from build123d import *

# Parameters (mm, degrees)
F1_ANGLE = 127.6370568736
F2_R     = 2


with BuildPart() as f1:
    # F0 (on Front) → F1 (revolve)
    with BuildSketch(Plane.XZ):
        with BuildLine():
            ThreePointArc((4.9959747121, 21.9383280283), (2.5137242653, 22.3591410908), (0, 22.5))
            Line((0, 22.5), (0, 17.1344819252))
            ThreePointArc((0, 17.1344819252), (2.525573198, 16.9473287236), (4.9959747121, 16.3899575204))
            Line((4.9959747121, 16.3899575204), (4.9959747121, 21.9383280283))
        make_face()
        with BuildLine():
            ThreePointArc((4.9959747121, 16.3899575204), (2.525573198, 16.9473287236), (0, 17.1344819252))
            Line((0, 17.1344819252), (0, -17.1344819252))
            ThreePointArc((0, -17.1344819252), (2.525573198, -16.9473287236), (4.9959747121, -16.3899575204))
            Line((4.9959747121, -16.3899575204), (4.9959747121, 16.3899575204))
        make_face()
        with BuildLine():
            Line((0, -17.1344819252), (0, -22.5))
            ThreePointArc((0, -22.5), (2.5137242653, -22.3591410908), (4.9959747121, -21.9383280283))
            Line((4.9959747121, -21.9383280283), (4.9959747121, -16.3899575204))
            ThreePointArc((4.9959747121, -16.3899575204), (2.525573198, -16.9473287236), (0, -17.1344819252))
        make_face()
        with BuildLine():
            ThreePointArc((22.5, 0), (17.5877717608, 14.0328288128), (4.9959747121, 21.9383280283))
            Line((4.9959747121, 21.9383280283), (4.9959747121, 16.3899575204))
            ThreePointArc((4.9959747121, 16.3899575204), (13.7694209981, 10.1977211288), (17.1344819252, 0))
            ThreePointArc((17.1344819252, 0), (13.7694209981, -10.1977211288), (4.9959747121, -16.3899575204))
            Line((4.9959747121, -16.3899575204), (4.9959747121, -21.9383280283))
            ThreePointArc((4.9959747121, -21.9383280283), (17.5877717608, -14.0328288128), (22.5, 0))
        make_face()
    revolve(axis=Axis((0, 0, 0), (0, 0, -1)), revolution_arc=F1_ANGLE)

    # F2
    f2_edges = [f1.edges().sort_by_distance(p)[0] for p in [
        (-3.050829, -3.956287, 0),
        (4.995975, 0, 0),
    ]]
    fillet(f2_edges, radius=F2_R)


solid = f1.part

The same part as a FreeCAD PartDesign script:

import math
import FreeCAD as App
import Part
import Sketcher

V = App.Vector


def edges_at(feature, points):
    """Names of the edges that pass closest to the given points."""
    edges = feature.Shape.Edges
    near = lambda p: min(range(len(edges)), key=lambda i: edges[i].distToShape(Part.Vertex(*p))[0])
    return sorted({f"Edge{near(p) + 1}" for p in points})

doc = App.newDocument("Part")
body = doc.addObject("PartDesign::Body", "Body")

# Sketch on XZ plane
sketch1 = body.newObject("Sketcher::SketchObject", "Sketch")
sketch1.AttachmentSupport = (doc.getObject("XZ_Plane"), [""])
sketch1.MapMode = "FlatFace"
sketch1.addGeometry(Part.ArcOfCircle(Part.Circle(V(0, 0, 0), V(0, 0, 1), 22.5), math.radians(77.170925), math.radians(90)), False)
sketch1.addGeometry(Part.LineSegment(V(0, 22.5, 0), V(0, -22.5, 0)), False)
sketch1.addGeometry(Part.ArcOfCircle(Part.Circle(V(0, 0, 0), V(0, 0, 1), 22.5), math.radians(-90), math.radians(-77.170925)), False)
sketch1.addGeometry(Part.ArcOfCircle(Part.Circle(V(0, 0, 0), V(0, 0, 1), 22.5), math.radians(-77.170925), math.radians(0)), False)
sketch1.addGeometry(Part.ArcOfCircle(Part.Circle(V(0, 0, 0), V(0, 0, 1), 22.5), math.radians(0), math.radians(77.170925)), False)
sketch1.addGeometry(Part.LineSegment(V(4.995975, -16.389958, 0), V(4.995975, 16.389958, 0)), False)
sketch1.addGeometry(Part.ArcOfCircle(Part.Circle(V(0, 0, 0), V(0, 0, 1), 17.134482), math.radians(0), math.radians(73.047769)), False)
sketch1.addGeometry(Part.ArcOfCircle(Part.Circle(V(0, 0, 0), V(0, 0, 1), 17.134482), math.radians(-73.047769), math.radians(0)), False)
sketch1.addConstraint(Sketcher.Constraint("Coincident", 0, 2, 1, 1))
sketch1.addConstraint(Sketcher.Constraint("Coincident", 1, 2, 2, 1))
sketch1.addConstraint(Sketcher.Constraint("Tangent", 2, 2, 3, 1))
sketch1.addConstraint(Sketcher.Constraint("Tangent", 3, 2, 4, 1))
sketch1.addConstraint(Sketcher.Constraint("Tangent", 4, 2, 0, 1))
sketch1.addConstraint(Sketcher.Constraint("Coincident", 5, 2, 6, 2))
sketch1.addConstraint(Sketcher.Constraint("Tangent", 6, 1, 7, 2))
sketch1.addConstraint(Sketcher.Constraint("Coincident", 7, 1, 5, 1))
sketch1.addConstraint(Sketcher.Constraint("Vertical", 1))
sketch1.addConstraint(Sketcher.Constraint("Vertical", 5))
sketch1.addConstraint(Sketcher.Constraint("Coincident", 0, 3, -1, 1))
sketch1.addConstraint(Sketcher.Constraint("Coincident", 2, 3, -1, 1))
sketch1.addConstraint(Sketcher.Constraint("Coincident", 6, 3, -1, 1))
sketch1.addConstraint(Sketcher.Constraint("Equal", 0, 2))
sketch1.addConstraint(Sketcher.Constraint("Equal", 6, 7))
sketch1.addConstraint(Sketcher.Constraint("PointOnObject", 0, 2, -2))
sketch1.addConstraint(Sketcher.Constraint("PointOnObject", 3, 2, -1))
sketch1.addConstraint(Sketcher.Constraint("PointOnObject", 6, 1, -1))
sketch1.addConstraint(Sketcher.Constraint("Vertical", 2, 2, 4, 2))
sketch1.addConstraint(Sketcher.Constraint("Vertical", 4, 2, 5, 2))
sketch1.addConstraint(Sketcher.Constraint("Radius", 0, 22.5))
sketch1.addConstraint(Sketcher.Constraint("Radius", 6, 17.134482))
sketch1.addConstraint(Sketcher.Constraint("DistanceY", 5, 1, 5, 2, 32.779915))
revolution = body.newObject("PartDesign::Revolution", "Revolution")
revolution.Profile = sketch1
revolution.ReferenceAxis = (sketch1, ["V_Axis"])
revolution.Angle = 127.637057
revolution.Reversed = True
doc.recompute()

fillet = body.newObject("PartDesign::Fillet", "Fillet")
fillet.Base = (revolution, edges_at(revolution, [(-3.051, -3.956, 0), (4.996, 0, 0)]))
fillet.Radius = 2

doc.recompute()
